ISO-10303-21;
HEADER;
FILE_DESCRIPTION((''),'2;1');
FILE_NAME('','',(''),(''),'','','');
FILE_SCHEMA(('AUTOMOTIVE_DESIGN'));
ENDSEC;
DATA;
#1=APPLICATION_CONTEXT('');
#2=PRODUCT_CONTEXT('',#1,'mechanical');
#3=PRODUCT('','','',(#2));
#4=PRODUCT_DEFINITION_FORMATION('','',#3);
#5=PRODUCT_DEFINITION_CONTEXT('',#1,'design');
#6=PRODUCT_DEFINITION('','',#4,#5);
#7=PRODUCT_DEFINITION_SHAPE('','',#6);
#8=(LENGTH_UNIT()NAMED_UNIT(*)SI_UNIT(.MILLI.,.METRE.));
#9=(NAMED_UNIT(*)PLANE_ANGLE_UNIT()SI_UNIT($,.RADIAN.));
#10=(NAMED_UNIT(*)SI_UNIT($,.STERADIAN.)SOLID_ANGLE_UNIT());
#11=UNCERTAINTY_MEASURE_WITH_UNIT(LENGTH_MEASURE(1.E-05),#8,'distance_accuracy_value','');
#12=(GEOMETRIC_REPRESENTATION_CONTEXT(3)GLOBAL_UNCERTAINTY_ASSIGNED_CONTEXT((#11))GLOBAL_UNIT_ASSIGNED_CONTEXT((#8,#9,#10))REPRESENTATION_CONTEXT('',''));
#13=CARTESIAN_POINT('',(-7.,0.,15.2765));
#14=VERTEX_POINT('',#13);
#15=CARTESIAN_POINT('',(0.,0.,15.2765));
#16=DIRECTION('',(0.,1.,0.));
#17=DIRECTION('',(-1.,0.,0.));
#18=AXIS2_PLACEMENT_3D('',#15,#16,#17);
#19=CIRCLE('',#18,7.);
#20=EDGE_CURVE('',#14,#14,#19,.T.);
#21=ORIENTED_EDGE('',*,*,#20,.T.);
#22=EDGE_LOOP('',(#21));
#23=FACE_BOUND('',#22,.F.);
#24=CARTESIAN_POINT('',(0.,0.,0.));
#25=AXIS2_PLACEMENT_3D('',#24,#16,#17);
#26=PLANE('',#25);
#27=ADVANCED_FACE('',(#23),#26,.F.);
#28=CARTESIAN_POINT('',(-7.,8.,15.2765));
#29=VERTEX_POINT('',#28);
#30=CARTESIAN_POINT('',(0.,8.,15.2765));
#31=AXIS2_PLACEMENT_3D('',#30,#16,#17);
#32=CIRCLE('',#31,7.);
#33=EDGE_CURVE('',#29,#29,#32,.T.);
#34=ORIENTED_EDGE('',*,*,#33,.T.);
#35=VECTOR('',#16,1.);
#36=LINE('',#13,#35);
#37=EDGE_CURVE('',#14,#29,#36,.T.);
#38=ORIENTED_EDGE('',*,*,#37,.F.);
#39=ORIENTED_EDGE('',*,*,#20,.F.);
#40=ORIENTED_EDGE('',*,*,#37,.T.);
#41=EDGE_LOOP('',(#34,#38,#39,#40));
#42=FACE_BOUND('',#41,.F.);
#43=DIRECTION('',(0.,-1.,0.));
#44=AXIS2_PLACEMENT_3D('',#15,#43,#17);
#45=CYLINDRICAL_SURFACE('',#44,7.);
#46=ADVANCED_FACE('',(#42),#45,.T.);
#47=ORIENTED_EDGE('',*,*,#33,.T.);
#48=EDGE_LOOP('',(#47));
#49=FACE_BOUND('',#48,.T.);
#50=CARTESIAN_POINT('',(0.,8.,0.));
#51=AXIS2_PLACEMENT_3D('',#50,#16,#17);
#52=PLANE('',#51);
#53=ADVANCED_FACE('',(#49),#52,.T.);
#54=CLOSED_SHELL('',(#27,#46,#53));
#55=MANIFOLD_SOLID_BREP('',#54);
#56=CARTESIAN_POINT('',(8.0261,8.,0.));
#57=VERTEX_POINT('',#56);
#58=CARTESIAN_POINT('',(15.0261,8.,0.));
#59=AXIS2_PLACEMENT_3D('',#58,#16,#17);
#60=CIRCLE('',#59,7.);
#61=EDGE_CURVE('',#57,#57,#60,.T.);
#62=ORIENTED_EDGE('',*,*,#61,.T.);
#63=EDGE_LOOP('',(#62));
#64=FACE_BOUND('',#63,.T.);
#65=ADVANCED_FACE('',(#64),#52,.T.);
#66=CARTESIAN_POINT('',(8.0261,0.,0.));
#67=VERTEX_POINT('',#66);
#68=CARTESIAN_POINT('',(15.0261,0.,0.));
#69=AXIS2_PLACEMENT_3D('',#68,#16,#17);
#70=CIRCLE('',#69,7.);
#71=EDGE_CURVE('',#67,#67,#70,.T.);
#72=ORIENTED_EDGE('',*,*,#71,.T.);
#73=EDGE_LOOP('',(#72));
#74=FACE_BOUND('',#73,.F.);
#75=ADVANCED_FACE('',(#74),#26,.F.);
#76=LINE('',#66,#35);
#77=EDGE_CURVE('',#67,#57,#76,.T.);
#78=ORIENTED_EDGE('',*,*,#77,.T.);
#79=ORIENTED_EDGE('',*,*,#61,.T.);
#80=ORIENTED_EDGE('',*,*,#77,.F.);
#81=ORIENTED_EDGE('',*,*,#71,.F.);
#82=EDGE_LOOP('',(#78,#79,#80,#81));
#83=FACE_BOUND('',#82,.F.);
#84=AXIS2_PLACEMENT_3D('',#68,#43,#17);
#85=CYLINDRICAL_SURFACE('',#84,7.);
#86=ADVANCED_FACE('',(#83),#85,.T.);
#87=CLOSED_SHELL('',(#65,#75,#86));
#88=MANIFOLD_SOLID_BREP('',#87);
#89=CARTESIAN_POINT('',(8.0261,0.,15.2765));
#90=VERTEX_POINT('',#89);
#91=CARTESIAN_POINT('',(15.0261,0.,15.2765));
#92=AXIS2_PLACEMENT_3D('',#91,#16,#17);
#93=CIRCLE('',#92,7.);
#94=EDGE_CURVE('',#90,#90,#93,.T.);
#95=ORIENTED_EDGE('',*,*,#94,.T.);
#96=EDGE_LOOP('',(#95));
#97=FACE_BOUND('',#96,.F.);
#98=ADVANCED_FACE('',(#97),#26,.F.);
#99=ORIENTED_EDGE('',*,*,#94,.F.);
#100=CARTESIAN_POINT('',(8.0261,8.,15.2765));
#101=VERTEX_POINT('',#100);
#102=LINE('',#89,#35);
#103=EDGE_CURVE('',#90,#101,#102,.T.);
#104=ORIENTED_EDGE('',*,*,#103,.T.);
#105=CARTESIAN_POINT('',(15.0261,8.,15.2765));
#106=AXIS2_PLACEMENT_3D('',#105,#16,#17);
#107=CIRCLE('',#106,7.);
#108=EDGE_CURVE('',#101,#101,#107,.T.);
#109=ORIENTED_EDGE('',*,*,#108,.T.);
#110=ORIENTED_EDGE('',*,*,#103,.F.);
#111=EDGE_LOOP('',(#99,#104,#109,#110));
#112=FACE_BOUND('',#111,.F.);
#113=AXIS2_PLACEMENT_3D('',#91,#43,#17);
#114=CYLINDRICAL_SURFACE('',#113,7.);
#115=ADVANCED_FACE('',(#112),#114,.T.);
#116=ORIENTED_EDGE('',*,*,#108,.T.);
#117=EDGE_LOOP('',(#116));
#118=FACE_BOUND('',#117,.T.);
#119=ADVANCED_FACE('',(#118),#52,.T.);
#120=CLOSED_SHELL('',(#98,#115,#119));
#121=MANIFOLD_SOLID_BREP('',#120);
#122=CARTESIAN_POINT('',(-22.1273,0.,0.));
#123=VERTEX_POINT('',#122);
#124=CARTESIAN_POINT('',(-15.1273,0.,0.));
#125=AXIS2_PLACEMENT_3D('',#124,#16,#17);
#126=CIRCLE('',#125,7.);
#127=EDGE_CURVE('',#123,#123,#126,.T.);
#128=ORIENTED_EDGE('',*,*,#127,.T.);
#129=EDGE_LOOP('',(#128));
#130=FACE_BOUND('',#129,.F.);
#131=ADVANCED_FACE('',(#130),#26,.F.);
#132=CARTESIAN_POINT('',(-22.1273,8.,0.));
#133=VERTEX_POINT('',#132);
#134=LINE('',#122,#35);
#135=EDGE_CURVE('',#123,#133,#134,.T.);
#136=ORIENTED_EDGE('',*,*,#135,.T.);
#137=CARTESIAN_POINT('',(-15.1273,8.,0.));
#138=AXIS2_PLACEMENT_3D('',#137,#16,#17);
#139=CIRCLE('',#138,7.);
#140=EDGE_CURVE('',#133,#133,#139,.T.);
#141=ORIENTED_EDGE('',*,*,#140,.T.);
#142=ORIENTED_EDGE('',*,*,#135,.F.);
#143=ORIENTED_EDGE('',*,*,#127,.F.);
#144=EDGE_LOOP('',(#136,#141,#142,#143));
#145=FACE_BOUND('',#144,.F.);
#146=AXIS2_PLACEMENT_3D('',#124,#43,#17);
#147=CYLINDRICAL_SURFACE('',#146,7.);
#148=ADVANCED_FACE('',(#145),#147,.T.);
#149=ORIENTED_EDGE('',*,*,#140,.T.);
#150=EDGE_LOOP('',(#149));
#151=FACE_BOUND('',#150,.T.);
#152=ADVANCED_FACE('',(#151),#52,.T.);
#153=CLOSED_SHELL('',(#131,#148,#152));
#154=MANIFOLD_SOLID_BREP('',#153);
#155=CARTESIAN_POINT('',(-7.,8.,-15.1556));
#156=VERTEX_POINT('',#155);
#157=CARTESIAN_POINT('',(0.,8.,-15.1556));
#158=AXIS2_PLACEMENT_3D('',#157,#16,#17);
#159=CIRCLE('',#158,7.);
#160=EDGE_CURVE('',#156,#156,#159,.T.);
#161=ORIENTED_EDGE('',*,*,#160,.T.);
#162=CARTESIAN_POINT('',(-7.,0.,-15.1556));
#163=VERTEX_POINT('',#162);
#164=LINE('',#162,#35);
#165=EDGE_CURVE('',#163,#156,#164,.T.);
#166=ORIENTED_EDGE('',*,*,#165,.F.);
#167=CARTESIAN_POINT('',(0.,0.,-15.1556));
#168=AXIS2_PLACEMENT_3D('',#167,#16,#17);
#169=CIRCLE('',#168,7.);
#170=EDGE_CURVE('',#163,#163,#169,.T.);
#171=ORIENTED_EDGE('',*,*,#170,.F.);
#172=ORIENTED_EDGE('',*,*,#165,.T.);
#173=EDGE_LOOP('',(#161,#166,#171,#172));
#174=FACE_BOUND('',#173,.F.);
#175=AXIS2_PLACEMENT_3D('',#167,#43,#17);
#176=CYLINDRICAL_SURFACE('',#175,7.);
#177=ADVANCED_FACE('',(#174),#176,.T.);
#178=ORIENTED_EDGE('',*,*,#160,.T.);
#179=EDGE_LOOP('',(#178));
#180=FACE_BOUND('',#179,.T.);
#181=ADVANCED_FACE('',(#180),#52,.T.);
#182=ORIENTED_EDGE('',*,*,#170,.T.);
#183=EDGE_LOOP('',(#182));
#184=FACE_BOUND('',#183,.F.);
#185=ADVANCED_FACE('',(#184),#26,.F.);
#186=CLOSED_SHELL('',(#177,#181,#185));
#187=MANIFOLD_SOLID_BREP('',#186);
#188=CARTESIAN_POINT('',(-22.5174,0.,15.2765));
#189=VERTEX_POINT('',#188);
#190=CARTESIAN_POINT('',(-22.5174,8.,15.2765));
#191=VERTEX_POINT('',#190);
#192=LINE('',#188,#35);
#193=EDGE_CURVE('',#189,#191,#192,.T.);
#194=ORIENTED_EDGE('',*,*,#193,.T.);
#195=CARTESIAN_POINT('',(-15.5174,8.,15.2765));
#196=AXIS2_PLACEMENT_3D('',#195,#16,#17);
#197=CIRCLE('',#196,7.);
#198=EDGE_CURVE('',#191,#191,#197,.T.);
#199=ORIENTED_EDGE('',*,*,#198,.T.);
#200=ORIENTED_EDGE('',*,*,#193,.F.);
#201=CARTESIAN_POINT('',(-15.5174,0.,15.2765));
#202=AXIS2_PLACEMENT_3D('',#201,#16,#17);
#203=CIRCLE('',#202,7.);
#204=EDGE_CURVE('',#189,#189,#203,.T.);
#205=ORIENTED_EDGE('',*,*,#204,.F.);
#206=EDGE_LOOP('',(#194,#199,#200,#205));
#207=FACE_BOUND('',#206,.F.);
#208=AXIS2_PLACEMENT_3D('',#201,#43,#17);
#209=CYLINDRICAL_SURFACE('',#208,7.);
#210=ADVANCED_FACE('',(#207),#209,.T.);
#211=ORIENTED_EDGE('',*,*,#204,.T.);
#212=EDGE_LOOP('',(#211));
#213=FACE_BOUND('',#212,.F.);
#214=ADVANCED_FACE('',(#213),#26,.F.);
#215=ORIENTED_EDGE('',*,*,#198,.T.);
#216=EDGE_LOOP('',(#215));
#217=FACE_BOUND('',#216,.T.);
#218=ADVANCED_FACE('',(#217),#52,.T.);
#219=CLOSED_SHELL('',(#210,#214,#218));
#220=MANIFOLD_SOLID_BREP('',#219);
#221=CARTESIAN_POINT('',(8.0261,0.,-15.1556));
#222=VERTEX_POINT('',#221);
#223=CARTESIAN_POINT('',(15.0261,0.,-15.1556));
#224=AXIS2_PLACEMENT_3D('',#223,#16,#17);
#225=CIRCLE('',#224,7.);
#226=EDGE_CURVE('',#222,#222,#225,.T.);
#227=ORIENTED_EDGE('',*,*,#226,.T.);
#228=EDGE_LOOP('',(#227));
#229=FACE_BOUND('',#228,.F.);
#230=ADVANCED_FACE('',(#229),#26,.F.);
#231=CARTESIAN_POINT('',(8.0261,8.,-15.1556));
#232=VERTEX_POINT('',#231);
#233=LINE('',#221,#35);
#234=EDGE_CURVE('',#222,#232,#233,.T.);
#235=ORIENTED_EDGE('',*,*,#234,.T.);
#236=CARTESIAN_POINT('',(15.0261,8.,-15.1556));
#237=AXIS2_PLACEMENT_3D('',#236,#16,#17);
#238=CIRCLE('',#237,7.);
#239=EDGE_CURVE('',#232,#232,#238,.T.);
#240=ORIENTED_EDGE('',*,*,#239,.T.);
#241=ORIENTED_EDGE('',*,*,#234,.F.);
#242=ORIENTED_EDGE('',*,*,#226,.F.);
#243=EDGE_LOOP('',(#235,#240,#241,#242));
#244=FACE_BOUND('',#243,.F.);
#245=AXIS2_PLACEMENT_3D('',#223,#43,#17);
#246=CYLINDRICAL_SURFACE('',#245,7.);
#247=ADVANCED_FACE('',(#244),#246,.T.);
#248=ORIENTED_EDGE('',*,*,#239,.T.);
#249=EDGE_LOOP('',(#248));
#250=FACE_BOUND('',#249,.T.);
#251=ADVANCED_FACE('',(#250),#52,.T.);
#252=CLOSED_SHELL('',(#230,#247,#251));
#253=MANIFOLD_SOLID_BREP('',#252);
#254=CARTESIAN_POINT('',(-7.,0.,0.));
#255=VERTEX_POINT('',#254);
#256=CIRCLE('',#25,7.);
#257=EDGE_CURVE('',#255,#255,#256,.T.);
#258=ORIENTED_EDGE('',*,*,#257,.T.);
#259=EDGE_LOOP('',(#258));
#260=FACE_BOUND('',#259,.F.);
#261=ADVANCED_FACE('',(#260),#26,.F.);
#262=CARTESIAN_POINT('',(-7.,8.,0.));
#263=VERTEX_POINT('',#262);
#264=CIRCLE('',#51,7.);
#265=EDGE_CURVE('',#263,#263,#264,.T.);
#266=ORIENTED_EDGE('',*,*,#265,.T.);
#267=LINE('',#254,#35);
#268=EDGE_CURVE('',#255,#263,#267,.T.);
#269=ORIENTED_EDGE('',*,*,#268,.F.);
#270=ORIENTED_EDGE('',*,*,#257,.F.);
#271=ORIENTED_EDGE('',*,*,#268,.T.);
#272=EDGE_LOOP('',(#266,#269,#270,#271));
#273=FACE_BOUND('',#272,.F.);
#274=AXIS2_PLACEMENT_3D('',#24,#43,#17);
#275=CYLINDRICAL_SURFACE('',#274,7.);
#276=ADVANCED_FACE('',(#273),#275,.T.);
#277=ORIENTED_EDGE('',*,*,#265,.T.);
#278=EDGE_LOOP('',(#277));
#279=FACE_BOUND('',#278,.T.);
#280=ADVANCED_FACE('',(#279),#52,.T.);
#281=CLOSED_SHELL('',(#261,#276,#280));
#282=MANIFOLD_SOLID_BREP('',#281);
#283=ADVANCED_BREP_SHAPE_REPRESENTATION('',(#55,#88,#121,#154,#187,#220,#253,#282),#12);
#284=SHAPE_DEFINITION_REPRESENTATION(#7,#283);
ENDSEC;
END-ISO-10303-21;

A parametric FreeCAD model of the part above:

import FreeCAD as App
import Part
import Sketcher
from FreeCAD import Vector
Q = App.Units.Quantity

doc = App.newDocument("Part")
body = doc.addObject("PartDesign::Body", "Body")
body.AllowCompound = True

# Sketch on XZ plane
sketch1 = body.newObject("Sketcher::SketchObject", "Sketch")
sketch1.AttachmentSupport = (doc.getObject("XZ_Plane"), [""])
sketch1.MapMode = "FlatFace"
sketch1.addGeometry([
    Part.Circle(Vector(0, 0, 0), Vector(0, 0, 1), 7),  # 0
    Part.Circle(Vector(-15, 0, 0), Vector(0, 0, 1), 7),  # 1
    Part.Circle(Vector(15, 0, 0), Vector(0, 0, 1), 7),  # 2
    Part.Circle(Vector(0, -15, 0), Vector(0, 0, 1), 7),  # 3
    Part.Circle(Vector(0, 15, 0), Vector(0, 0, 1), 7),  # 4
    Part.Circle(Vector(15, 15, 0), Vector(0, 0, 1), 7),  # 5
    Part.Circle(Vector(-16, 15, 0), Vector(0, 0, 1), 7),  # 6
    Part.Circle(Vector(15, -15, 0), Vector(0, 0, 1), 7),  # 7
], False)
sketch1.addConstraint([
    Sketcher.Constraint("Coincident", 0, 3, -1, 1),
    Sketcher.Constraint("Equal", 0, 1),
    Sketcher.Constraint("Equal", 1, 2),
    Sketcher.Constraint("Equal", 2, 3),
    Sketcher.Constraint("Equal", 3, 4),
    Sketcher.Constraint("Equal", 4, 5),
    Sketcher.Constraint("Equal", 5, 6),
    Sketcher.Constraint("Equal", 6, 7),
    Sketcher.Constraint("PointOnObject", 1, 3, -1),
    Sketcher.Constraint("PointOnObject", 2, 3, -1),
    Sketcher.Constraint("PointOnObject", 3, 3, -2),
    Sketcher.Constraint("PointOnObject", 4, 3, -2),
    Sketcher.Constraint("Horizontal", 4, 3, 5, 3),
    Sketcher.Constraint("Horizontal", 5, 3, 6, 3),
    Sketcher.Constraint("Horizontal", 3, 3, 7, 3),
    Sketcher.Constraint("Vertical", 2, 3, 5, 3),
    Sketcher.Constraint("Vertical", 5, 3, 7, 3),
    Sketcher.Constraint("Diameter", 0, Q("14 mm")),
    Sketcher.Constraint("DistanceX", 6, 3, 1, 3, Q("0.39 mm")),
    Sketcher.Constraint("DistanceX", -1, 1, 2, 3, Q("15.026 mm")),
    Sketcher.Constraint("DistanceY", 3, 3, 4, 3, Q("30.432 mm")),
    Sketcher.Constraint("DistanceX", 1, 3, -1, 1, Q("15.1273 mm")),
    Sketcher.Constraint("DistanceY", 3, 3, -1, 1, Q("15.1556 mm")),
])
pad1 = body.newObject("PartDesign::Pad", "Pad")
pad1.Profile = sketch1
pad1.Length = 8
pad1.Reversed = True

doc.recompute()
